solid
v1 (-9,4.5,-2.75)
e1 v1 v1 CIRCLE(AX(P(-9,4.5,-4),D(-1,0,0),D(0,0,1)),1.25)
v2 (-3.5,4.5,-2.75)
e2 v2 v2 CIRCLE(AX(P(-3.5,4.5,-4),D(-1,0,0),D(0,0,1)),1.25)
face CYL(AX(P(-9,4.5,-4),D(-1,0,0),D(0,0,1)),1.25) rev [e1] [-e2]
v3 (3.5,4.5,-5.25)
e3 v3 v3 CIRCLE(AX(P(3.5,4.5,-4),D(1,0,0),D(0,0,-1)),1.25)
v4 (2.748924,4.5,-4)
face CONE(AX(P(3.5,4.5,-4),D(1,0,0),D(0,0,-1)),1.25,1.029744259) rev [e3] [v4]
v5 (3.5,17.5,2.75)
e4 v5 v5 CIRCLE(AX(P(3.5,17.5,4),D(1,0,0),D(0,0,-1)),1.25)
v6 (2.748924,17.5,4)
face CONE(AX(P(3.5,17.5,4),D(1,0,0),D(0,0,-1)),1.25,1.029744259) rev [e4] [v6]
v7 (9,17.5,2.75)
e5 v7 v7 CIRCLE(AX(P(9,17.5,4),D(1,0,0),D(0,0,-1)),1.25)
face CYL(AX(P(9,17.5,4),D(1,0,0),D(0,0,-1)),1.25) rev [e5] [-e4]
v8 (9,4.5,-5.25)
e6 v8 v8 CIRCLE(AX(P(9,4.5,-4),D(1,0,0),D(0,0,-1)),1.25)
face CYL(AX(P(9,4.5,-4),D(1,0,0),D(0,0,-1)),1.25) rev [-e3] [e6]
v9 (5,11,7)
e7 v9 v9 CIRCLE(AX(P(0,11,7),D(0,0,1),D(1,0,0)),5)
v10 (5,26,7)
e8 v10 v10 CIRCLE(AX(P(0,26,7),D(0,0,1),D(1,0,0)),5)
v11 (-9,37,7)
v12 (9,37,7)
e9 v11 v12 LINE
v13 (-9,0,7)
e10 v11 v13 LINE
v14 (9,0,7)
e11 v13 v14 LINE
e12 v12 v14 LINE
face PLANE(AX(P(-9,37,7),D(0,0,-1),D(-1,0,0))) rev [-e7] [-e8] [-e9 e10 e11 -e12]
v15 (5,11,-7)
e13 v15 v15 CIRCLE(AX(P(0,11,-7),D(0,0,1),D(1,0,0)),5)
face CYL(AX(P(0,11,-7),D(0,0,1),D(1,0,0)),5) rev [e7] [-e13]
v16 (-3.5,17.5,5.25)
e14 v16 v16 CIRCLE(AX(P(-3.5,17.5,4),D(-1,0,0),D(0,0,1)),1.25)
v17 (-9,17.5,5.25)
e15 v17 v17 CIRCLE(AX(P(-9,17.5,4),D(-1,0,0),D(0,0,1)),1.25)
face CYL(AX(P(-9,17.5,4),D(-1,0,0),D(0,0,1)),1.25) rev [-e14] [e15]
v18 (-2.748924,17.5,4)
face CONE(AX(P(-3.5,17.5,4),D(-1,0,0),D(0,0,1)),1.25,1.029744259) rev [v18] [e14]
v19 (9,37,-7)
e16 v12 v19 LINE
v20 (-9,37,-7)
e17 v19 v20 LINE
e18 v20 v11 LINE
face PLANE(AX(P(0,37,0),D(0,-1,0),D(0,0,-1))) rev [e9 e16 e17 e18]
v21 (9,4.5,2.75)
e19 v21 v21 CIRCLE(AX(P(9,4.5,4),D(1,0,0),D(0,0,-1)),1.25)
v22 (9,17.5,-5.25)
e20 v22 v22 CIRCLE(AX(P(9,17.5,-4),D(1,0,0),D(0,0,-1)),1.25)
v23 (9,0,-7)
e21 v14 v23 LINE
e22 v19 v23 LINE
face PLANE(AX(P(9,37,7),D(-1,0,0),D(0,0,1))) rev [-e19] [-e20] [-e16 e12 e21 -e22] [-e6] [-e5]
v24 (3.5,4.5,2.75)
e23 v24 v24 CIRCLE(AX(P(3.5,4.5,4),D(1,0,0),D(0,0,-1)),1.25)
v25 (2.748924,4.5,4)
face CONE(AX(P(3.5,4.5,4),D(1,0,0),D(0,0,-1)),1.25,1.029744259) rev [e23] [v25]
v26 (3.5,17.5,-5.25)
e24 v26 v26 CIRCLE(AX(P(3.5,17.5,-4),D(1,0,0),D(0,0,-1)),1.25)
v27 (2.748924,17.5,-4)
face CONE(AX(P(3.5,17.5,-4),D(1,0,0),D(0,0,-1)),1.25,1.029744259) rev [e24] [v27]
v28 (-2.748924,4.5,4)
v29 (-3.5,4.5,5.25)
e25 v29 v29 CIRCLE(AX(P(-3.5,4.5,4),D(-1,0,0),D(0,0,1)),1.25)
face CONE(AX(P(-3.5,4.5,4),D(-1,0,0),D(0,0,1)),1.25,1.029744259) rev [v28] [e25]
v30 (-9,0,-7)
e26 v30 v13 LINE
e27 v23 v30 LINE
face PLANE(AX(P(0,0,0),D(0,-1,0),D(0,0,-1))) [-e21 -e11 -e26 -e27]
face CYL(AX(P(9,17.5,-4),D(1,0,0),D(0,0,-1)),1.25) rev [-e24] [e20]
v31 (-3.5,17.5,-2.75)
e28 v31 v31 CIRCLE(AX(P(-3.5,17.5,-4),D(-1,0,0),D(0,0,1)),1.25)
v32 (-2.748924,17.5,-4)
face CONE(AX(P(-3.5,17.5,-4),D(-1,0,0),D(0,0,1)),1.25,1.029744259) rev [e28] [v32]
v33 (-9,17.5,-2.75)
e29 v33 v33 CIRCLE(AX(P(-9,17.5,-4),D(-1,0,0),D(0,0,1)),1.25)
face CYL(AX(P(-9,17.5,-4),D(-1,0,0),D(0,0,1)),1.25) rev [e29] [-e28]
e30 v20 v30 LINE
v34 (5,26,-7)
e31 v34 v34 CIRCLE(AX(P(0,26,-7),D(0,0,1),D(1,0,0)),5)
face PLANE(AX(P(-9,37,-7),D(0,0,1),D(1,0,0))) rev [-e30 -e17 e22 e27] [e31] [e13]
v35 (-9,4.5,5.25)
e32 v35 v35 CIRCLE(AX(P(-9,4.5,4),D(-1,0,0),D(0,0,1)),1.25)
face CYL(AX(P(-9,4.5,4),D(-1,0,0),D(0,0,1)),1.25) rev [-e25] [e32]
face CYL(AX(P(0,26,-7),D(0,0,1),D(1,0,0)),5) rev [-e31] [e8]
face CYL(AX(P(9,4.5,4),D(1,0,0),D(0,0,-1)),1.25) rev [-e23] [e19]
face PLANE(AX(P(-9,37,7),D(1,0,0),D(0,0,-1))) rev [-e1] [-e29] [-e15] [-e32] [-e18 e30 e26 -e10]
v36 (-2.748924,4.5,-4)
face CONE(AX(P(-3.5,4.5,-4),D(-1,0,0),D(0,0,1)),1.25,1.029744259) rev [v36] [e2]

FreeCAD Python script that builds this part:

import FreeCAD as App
import Part
import Sketcher

V = App.Vector
Q = App.Units.Quantity


def add_polygon(sketch, points):
    """Adds a closed chain of lines whose ends are joined by coincident constraints."""
    first, n = sketch.GeometryCount, len(points)
    for a, b in zip(points, points[1:] + points[:1]):
        sketch.addGeometry(Part.LineSegment(App.Vector(*a, 0), App.Vector(*b, 0)), False)
    for i in range(n):
        sketch.addConstraint(Sketcher.Constraint("Coincident", first + i, 2, first + (i + 1) % n, 1))

doc = App.newDocument("Part")
body = doc.addObject("PartDesign::Body", "Body")

# Sketch on XZ plane
sketch1 = body.newObject("Sketcher::SketchObject", "Sketch")
sketch1.AttachmentSupport = (doc.getObject("XZ_Plane"), [""])
sketch1.MapMode = "FlatFace"
add_polygon(sketch1, [(-9, -7), (-9, 7), (9, 7), (9, -7)])  # lines 0-3
sketch1.addConstraint([
    Sketcher.Constraint("Vertical", 0),
    Sketcher.Constraint("Horizontal", 1),
    Sketcher.Constraint("Vertical", 2),
    Sketcher.Constraint("Horizontal", 3),
    Sketcher.Constraint("Symmetric", 0, 2, 2, 2, -1, 1),
    Sketcher.Constraint("DistanceX", 1, 1, 1, 2, Q("18 mm")),
    Sketcher.Constraint("DistanceY", 0, 1, 0, 2, Q("14 mm")),
])
pad1 = body.newObject("PartDesign::Pad", "Pad")
pad1.Profile = sketch1
pad1.Length = 37
pad1.Reversed = True

# Sketch on XY plane
sketch2 = body.newObject("Sketcher::SketchObject", "Sketch001")
sketch2.AttachmentSupport = (doc.getObject("XY_Plane"), [""])
sketch2.MapMode = "FlatFace"
sketch2.AttachmentOffset = App.Placement(V(0, 0, 7), App.Rotation())
sketch2.addGeometry([
    Part.Circle(V(0, 26, 0), V(0, 0, 1), 5),
    Part.Circle(V(0, 11, 0), V(0, 0, 1), 5),
], False)
sketch2.addConstraint([
    Sketcher.Constraint("Equal", 0, 1),
    Sketcher.Constraint("PointOnObject", 0, 3, -2),
    Sketcher.Constraint("PointOnObject", 1, 3, -2),
    Sketcher.Constraint("Diameter", 0, Q("10 mm")),
    Sketcher.Constraint("DistanceY", -1, 1, 0, 3, Q("26 mm")),
    Sketcher.Constraint("DistanceY", -1, 1, 1, 3, Q("11 mm")),
])
pocket1 = body.newObject("PartDesign::Pocket", "Pocket")
pocket1.Profile = sketch2
pocket1.Type = "ThroughAll"

# Sketch on XZ plane
sketch3 = body.newObject("Sketcher::SketchObject", "Sketch002")
sketch3.AttachmentSupport = (doc.getObject("XZ_Plane"), [""])
sketch3.MapMode = "FlatFace"
sketch3.AttachmentOffset = App.Placement(V(0, 0, -17.5), App.Rotation())
add_polygon(sketch3, [(-2.7, -4), (-9, -4), (-9, -2.8), (-3.5, -2.8)])  # lines 0-3
sketch3.addGeometry(Part.LineSegment(V(-9, -4, 0), V(-2.7, -4, 0)), True)  # axis
sketch3.addConstraint([
    Sketcher.Constraint("Horizontal", 0),
    Sketcher.Constraint("Vertical", 1),
    Sketcher.Constraint("Horizontal", 2),
    Sketcher.Constraint("Horizontal", 4),
    Sketcher.Constraint("Coincident", 4, 1, 0, 2),
    Sketcher.Constraint("Equal", 0, 4),
    Sketcher.Constraint("Angle", 3, Q("-59 deg")),
    Sketcher.Constraint("DistanceX", 2, 1, 2, 2, Q("5.5 mm")),
    Sketcher.Constraint("DistanceX", 0, 2, -1, 1, Q("9 mm")),
    Sketcher.Constraint("DistanceY", 0, 2, -1, 1, Q("4 mm")),
    Sketcher.Constraint("DistanceY", 1, 1, 1, 2, Q("1.25 mm")),
])
groove = body.newObject("PartDesign::Groove", "Groove")
groove.Profile = sketch3
groove.ReferenceAxis = (sketch3, ["Axis0"])
groove.Angle = 360
doc.recompute()

linearpattern = body.newObject("PartDesign::LinearPattern", "LinearPattern")
linearpattern.Originals = [groove]
linearpattern.Direction = (doc.getObject("Z_Axis"), [""])
linearpattern.Mode = "offset"
linearpattern.Offset = 8
linearpattern.Occurrences = 2
body.Tip = linearpattern
doc.recompute()

datumline = body.newObject("PartDesign::Line", "DatumLine")
datumline.Placement = App.Placement(V(0, 0, 0), App.Rotation(V(0, 0, 1), V(0, -0.851658317, 0.524097426)))
linearpattern2 = body.newObject("PartDesign::LinearPattern", "LinearPattern001")
linearpattern2.Originals = [groove]
linearpattern2.Direction = (datumline, [""])
linearpattern2.Mode = "offset"
linearpattern2.Offset = 15.264338
linearpattern2.Occurrences = 2
body.Tip = linearpattern2
doc.recompute()

linearpattern3 = body.newObject("PartDesign::LinearPattern", "LinearPattern002")
linearpattern3.Originals = [groove]
linearpattern3.Direction = (doc.getObject("Y_Axis"), [""])
linearpattern3.Mode = "offset"
linearpattern3.Offset = 13
linearpattern3.Occurrences = 2
linearpattern3.Reversed = True
body.Tip = linearpattern3
doc.recompute()

mirrored = body.newObject("PartDesign::Mirrored", "Mirrored")
mirrored.Originals = [groove]
mirrored.MirrorPlane = (doc.getObject("YZ_Plane"), [""])
body.Tip = mirrored

# Sketch on XZ plane
sketch4 = body.newObject("Sketcher::SketchObject", "Sketch003")
sketch4.AttachmentSupport = (doc.getObject("XZ_Plane"), [""])
sketch4.MapMode = "FlatFace"
sketch4.AttachmentOffset = App.Placement(V(0, 0, -17.5), App.Rotation())
add_polygon(sketch4, [(9, 4), (2.7, 4), (3.5, 5.2), (9, 5.2)])  # lines 0-3
sketch4.addGeometry(Part.LineSegment(V(2.7, 4, 0), V(9, 4, 0)), True)  # axis
sketch4.addConstraint([
    Sketcher.Constraint("Horizontal", 0),
    Sketcher.Constraint("Horizontal", 2),
    Sketcher.Constraint("Vertical", 3),
    Sketcher.Constraint("Horizontal", 4),
    Sketcher.Constraint("Coincident", 4, 1, 0, 2),
    Sketcher.Constraint("Vertical", 2, 2, 4, 2),
    Sketcher.Constraint("Angle", 1, Q("59 deg")),
    Sketcher.Constraint("DistanceX", 2, 1, 2, 2, Q("5.5 mm")),
    Sketcher.Constraint("DistanceY", -1, 1, 0, 2, Q("4 mm")),
    Sketcher.Constraint("DistanceX", -1, 1, 2, 2, Q("9 mm")),
    Sketcher.Constraint("DistanceY", 3, 2, 3, 1, Q("1.25 mm")),
])
groove2 = body.newObject("PartDesign::Groove", "Groove001")
groove2.Profile = sketch4
groove2.ReferenceAxis = (sketch4, ["Axis0"])
groove2.Angle = 360

# Sketch on XZ plane
sketch5 = body.newObject("Sketcher::SketchObject", "Sketch004")
sketch5.AttachmentSupport = (doc.getObject("XZ_Plane"), [""])
sketch5.MapMode = "FlatFace"
sketch5.AttachmentOffset = App.Placement(V(0, 0, -4.5), App.Rotation())
add_polygon(sketch5, [(9, 4), (2.7, 4), (3.5, 5.2), (9, 5.2)])  # lines 0-3
sketch5.addGeometry(Part.LineSegment(V(2.7, 4, 0), V(9, 4, 0)), True)  # axis
sketch5.addConstraint([
    Sketcher.Constraint("Horizontal", 0),
    Sketcher.Constraint("Horizontal", 2),
    Sketcher.Constraint("Vertical", 3),
    Sketcher.Constraint("Horizontal", 4),
    Sketcher.Constraint("Coincident", 4, 1, 0, 2),
    Sketcher.Constraint("Vertical", 2, 2, 4, 2),
    Sketcher.Constraint("Angle", 1, Q("59 deg")),
    Sketcher.Constraint("DistanceX", 2, 1, 2, 2, Q("5.5 mm")),
    Sketcher.Constraint("DistanceY", -1, 1, 0, 2, Q("4 mm")),
    Sketcher.Constraint("DistanceX", -1, 1, 2, 2, Q("9 mm")),
    Sketcher.Constraint("DistanceY", 3, 2, 3, 1, Q("1.25 mm")),
])
groove3 = body.newObject("PartDesign::Groove", "Groove002")
groove3.Profile = sketch5
groove3.ReferenceAxis = (sketch5, ["Axis0"])
groove3.Angle = 360

# Sketch on XZ plane
sketch6 = body.newObject("Sketcher::SketchObject", "Sketch005")
sketch6.AttachmentSupport = (doc.getObject("XZ_Plane"), [""])
sketch6.MapMode = "FlatFace"
sketch6.AttachmentOffset = App.Placement(V(0, 0, -4.5), App.Rotation())
add_polygon(sketch6, [(9, -4), (2.7, -4), (3.5, -2.8), (9, -2.8)])  # lines 0-3
sketch6.addGeometry(Part.LineSegment(V(2.7, -4, 0), V(9, -4, 0)), True)  # axis
sketch6.addConstraint([
    Sketcher.Constraint("Horizontal", 0),
    Sketcher.Constraint("Horizontal", 2),
    Sketcher.Constraint("Vertical", 3),
    Sketcher.Constraint("Horizontal", 4),
    Sketcher.Constraint("Coincident", 4, 1, 0, 2),
    Sketcher.Constraint("Vertical", 2, 2, 4, 2),
    Sketcher.Constraint("Angle", 1, Q("59 deg")),
    Sketcher.Constraint("DistanceX", 2, 1, 2, 2, Q("5.5 mm")),
    Sketcher.Constraint("DistanceY", 0, 2, -1, 1, Q("4 mm")),
    Sketcher.Constraint("DistanceX", -1, 1, 2, 2, Q("9 mm")),
    Sketcher.Constraint("DistanceY", 3, 2, 3, 1, Q("1.25 mm")),
])
groove4 = body.newObject("PartDesign::Groove", "Groove003")
groove4.Profile = sketch6
groove4.ReferenceAxis = (sketch6, ["Axis0"])
groove4.Angle = 360

doc.recompute()
